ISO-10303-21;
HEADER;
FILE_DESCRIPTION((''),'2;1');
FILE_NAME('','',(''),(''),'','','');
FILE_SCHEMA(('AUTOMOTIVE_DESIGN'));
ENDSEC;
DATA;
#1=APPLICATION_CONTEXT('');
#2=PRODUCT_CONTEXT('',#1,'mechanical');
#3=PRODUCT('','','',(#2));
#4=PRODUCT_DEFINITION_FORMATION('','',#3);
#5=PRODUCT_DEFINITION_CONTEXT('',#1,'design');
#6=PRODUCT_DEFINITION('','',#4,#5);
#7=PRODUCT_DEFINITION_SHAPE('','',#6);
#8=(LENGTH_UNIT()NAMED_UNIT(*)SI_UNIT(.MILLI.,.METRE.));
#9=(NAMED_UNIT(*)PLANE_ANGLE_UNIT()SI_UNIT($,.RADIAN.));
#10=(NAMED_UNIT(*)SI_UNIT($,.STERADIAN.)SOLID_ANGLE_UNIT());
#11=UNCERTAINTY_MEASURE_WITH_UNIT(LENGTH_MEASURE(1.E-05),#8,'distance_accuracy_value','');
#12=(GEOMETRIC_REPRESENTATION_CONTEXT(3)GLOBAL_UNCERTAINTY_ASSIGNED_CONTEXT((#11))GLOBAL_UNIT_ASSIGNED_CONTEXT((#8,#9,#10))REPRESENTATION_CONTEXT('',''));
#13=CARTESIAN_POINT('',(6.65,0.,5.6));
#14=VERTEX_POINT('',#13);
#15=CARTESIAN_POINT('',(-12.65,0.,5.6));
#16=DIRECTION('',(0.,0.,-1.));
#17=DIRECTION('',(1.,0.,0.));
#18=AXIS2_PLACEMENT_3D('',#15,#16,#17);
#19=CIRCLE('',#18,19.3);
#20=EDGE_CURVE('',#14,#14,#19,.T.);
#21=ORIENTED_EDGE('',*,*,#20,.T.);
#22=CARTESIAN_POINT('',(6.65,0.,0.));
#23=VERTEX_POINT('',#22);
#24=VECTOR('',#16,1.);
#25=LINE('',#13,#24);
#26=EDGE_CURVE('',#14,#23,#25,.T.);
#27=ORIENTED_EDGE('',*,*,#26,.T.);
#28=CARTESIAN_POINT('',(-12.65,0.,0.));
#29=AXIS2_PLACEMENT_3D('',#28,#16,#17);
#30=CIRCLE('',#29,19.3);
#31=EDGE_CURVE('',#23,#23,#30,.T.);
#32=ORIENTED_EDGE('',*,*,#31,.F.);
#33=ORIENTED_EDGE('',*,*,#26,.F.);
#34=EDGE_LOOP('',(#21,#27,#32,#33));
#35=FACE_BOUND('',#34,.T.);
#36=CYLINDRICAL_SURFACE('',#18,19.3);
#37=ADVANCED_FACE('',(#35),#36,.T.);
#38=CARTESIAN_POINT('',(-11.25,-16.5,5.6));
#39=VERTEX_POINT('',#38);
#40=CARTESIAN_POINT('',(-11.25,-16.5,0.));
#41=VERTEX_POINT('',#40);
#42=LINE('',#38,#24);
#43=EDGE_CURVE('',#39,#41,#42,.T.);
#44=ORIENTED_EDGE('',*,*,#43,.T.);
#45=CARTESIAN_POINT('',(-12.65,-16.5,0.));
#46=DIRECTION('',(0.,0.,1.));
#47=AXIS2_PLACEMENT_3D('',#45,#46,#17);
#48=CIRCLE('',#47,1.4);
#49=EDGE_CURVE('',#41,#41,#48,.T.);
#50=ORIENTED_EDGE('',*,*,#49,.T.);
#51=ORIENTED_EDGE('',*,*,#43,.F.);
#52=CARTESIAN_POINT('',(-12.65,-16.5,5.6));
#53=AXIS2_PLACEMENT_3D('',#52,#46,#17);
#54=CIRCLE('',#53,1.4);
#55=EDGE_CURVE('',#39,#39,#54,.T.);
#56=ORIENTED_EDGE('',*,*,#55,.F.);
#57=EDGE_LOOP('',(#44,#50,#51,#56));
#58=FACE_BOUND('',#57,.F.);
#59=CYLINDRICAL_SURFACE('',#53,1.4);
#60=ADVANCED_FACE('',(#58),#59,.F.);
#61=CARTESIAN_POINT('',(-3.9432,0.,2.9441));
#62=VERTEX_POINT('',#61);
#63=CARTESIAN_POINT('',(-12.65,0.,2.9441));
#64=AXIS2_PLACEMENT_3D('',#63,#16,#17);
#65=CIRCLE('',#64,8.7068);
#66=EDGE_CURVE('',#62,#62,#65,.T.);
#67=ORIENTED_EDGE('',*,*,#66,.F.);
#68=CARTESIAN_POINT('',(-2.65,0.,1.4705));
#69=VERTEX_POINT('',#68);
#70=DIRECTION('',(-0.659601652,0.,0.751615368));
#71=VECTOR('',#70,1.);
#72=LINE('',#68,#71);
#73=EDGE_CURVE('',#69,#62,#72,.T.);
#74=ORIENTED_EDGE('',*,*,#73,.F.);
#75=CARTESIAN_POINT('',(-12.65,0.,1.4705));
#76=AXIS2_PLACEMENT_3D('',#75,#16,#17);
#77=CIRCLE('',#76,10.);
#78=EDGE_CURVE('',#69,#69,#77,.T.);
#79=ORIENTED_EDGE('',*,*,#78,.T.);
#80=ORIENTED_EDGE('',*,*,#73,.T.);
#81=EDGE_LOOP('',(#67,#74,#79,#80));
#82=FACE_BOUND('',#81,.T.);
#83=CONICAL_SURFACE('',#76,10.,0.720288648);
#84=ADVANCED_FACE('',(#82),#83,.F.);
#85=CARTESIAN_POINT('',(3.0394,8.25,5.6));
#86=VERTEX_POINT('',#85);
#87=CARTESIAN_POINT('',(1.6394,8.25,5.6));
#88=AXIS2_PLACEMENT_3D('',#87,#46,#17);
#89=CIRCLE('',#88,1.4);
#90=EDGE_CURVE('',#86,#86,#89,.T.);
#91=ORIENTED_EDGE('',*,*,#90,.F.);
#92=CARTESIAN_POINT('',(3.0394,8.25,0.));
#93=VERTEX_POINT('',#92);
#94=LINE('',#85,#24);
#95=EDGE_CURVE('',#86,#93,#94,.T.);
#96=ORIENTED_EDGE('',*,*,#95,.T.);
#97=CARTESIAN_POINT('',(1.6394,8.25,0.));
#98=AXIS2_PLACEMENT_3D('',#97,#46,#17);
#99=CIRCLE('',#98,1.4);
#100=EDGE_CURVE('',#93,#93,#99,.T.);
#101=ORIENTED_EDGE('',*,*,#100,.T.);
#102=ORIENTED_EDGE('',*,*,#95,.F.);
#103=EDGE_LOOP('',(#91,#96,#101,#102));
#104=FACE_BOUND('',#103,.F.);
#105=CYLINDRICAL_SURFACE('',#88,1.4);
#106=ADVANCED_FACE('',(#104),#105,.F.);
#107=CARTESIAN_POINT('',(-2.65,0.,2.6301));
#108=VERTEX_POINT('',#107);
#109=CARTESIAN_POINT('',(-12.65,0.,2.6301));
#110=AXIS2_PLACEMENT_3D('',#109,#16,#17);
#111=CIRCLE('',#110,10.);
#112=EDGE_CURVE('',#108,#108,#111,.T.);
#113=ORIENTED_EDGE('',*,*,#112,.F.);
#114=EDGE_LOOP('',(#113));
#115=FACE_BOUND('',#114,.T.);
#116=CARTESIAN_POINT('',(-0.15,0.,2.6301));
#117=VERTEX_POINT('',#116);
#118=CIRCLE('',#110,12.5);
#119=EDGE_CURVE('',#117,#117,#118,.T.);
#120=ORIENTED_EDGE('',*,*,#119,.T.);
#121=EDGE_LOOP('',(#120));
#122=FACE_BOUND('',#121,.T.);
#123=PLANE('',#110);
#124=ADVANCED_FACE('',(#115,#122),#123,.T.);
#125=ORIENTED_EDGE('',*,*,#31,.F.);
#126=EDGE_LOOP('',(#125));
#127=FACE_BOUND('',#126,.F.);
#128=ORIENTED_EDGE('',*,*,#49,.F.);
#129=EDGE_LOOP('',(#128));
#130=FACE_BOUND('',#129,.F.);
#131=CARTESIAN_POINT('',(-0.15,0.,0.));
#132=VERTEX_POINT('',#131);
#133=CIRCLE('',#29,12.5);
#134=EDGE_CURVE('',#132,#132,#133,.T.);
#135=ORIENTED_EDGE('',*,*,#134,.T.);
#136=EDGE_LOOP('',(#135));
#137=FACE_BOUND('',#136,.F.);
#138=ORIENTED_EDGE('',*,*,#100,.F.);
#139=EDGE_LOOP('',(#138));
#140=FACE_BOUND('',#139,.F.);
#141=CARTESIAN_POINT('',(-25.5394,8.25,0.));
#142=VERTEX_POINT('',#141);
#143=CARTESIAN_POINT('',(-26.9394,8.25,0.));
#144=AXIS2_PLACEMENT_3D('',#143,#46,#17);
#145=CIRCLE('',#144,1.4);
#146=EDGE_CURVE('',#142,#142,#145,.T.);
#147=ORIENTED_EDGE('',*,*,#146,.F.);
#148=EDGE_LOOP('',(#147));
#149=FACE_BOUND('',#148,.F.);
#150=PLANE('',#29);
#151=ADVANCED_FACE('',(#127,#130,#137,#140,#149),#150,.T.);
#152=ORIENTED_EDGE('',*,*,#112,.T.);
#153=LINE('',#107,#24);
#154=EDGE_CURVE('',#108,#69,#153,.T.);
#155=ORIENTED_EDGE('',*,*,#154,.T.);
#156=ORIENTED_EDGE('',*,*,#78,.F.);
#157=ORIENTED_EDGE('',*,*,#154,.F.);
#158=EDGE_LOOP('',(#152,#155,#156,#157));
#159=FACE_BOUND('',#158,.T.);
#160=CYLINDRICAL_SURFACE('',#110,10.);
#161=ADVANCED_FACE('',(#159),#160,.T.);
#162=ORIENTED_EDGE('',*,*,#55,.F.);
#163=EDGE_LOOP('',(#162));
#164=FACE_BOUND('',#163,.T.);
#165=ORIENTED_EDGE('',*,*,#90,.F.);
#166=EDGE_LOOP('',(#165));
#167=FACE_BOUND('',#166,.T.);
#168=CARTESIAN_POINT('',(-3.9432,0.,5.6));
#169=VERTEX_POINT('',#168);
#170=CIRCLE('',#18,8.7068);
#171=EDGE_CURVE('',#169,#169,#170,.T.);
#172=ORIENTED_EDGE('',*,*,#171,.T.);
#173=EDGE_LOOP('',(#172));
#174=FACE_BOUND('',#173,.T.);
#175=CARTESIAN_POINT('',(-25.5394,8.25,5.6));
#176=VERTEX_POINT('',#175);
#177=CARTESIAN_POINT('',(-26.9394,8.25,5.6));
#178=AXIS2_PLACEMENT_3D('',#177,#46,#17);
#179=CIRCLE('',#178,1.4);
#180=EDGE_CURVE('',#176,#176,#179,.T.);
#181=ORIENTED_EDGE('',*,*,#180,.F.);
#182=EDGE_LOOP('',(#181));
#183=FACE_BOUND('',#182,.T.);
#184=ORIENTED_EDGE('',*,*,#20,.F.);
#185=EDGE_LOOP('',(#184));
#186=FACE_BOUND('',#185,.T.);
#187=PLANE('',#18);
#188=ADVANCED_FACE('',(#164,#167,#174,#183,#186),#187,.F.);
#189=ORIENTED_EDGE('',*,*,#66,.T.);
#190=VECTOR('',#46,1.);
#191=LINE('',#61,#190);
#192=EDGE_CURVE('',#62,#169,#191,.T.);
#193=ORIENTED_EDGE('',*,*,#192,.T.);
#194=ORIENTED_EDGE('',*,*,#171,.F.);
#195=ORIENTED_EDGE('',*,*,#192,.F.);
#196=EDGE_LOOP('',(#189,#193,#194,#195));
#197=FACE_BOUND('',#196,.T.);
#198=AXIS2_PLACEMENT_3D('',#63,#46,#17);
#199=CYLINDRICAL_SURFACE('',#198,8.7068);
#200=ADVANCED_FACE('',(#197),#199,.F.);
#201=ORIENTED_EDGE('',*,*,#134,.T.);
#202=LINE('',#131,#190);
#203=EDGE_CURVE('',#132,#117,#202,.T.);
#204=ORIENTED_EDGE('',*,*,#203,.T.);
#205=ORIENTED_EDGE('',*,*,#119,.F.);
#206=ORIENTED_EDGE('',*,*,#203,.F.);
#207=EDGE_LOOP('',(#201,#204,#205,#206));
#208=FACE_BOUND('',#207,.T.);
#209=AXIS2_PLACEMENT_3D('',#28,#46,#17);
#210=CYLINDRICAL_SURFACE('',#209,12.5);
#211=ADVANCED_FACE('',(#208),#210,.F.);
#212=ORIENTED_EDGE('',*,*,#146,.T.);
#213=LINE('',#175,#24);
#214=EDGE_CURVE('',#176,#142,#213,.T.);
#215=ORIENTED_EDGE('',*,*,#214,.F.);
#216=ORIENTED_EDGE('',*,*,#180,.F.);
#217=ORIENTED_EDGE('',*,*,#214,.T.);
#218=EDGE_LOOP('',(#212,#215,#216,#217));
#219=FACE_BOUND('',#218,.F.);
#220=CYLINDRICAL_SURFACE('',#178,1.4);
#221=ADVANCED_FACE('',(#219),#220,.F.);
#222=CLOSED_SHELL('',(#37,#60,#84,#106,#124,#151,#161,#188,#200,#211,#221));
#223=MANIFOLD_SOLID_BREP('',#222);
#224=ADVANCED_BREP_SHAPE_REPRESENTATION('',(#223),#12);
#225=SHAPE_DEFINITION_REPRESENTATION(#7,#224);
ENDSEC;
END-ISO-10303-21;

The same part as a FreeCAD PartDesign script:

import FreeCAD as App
import Part
import Sketcher
from FreeCAD import Vector
Q = App.Units.Quantity

doc = App.newDocument("Part")
body = doc.addObject("PartDesign::Body", "Body")

sketch1 = body.newObject("Sketcher::SketchObject", "Sketch")
sketch1.AttachmentSupport = (doc.getObject("XZ_Plane"), [""])
sketch1.MapMode = "FlatFace"
sketch1.addGeometry([
    Part.LineSegment(Vector(-0.15, 0, 0), Vector(-0.15, 2.6301, 0)),
    Part.LineSegment(Vector(-0.15, 2.6301, 0), Vector(-2.65, 2.6301, 0)),
    Part.LineSegment(Vector(-2.65, 2.6301, 0), Vector(-2.65, 1.4705, 0)),
    Part.LineSegment(Vector(-2.65, 1.4705, 0), Vector(-3.9432, 2.9441, 0)),
    Part.LineSegment(Vector(-3.9432, 2.9441, 0), Vector(-3.9432, 5.6, 0)),
    Part.LineSegment(Vector(-3.9432, 5.6, 0), Vector(6.65, 5.6, 0)),
    Part.LineSegment(Vector(6.65, 5.6, 0), Vector(6.65, 0, 0)),
    Part.LineSegment(Vector(6.65, 0, 0), Vector(-0.15, 0, 0)),
], False)
sketch1.addGeometry(Part.LineSegment(Vector(-12.65, 5.6, 0), Vector(-12.65, 0, 0)), True)
sketch1.addConstraint([
    Sketcher.Constraint("Coincident", 0, 2, 1, 1),
    Sketcher.Constraint("Coincident", 1, 2, 2, 1),
    Sketcher.Constraint("Coincident", 2, 2, 3, 1),
    Sketcher.Constraint("Coincident", 3, 2, 4, 1),
    Sketcher.Constraint("Coincident", 4, 2, 5, 1),
    Sketcher.Constraint("Coincident", 5, 2, 6, 1),
    Sketcher.Constraint("Coincident", 6, 2, 7, 1),
    Sketcher.Constraint("Coincident", 7, 2, 0, 1),
    Sketcher.Constraint("Vertical", 0),
    Sketcher.Constraint("Horizontal", 1),
    Sketcher.Constraint("Vertical", 2),
    Sketcher.Constraint("Vertical", 4),
    Sketcher.Constraint("Horizontal", 5),
    Sketcher.Constraint("Vertical", 6),
    Sketcher.Constraint("Horizontal", 7),
    Sketcher.Constraint("Vertical", 8),
    Sketcher.Constraint("PointOnObject", 6, 2, -1),
    Sketcher.Constraint("PointOnObject", 8, 2, -1),
    Sketcher.Constraint("Horizontal", 5, 2, 8, 1),
    Sketcher.Constraint("DistanceX", 1, 2, 1, 1, Q("2.5 mm")),
    Sketcher.Constraint("DistanceX", 7, 2, 7, 1, Q("6.8 mm")),
    Sketcher.Constraint("DistanceY", 6, 2, 6, 1, Q("5.6 mm")),
    Sketcher.Constraint("DistanceX", 8, 1, 1, 2, Q("10 mm")),
    Sketcher.Constraint("DistanceY", 0, 1, 0, 2, Q("2.63 mm")),
    Sketcher.Constraint("Angle", 3, Q("131.2695 deg")),
    Sketcher.Constraint("DistanceY", 4, 1, 4, 2, Q("2.656 mm")),
    Sketcher.Constraint("DistanceX", 0, 2, -1, 1, Q("0.15 mm")),
    Sketcher.Constraint("DistanceX", 5, 1, 5, 2, Q("10.5932 mm")),
])
revolution = body.newObject("PartDesign::Revolution", "Revolution")
revolution.Profile = sketch1
revolution.ReferenceAxis = (sketch1, ["Axis0"])
revolution.Angle = 360

sketch2 = body.newObject("Sketcher::SketchObject", "Sketch001")
sketch2.AttachmentSupport = (doc.getObject("XY_Plane"), [""])
sketch2.MapMode = "FlatFace"
sketch2.AttachmentOffset = App.Placement(Vector(0, 0, 5.6), App.Rotation())
sketch2.addGeometry([
    Part.Circle(Vector(1.6394, 8.25, 0), Vector(0, 0, 1), 1.4),
    Part.Circle(Vector(-26.9394, 8.25, 0), Vector(0, 0, 1), 1.4),
    Part.Circle(Vector(-12.65, -16.5, 0), Vector(0, 0, 1), 1.4),
], False)
sketch2.addConstraint([
    Sketcher.Constraint("Equal", 0, 1),
    Sketcher.Constraint("Equal", 1, 2),
    Sketcher.Constraint("Horizontal", 0, 3, 1, 3),
    Sketcher.Constraint("Diameter", 0, Q("2.8 mm")),
    Sketcher.Constraint("DistanceY", 2, 3, -1, 1, Q("16.5 mm")),
    Sketcher.Constraint("DistanceY", -1, 1, 0, 3, Q("8.25 mm")),
    Sketcher.Constraint("DistanceX", 2, 3, -1, 1, Q("12.65 mm")),
    Sketcher.Constraint("DistanceX", -1, 1, 0, 3, Q("1.6394 mm")),
    Sketcher.Constraint("DistanceX", 1, 3, -1, 1, Q("26.9394 mm")),
])
pocket1 = body.newObject("PartDesign::Pocket", "Pocket")
pocket1.Profile = sketch2
pocket1.Length = 10

doc.recompute()
